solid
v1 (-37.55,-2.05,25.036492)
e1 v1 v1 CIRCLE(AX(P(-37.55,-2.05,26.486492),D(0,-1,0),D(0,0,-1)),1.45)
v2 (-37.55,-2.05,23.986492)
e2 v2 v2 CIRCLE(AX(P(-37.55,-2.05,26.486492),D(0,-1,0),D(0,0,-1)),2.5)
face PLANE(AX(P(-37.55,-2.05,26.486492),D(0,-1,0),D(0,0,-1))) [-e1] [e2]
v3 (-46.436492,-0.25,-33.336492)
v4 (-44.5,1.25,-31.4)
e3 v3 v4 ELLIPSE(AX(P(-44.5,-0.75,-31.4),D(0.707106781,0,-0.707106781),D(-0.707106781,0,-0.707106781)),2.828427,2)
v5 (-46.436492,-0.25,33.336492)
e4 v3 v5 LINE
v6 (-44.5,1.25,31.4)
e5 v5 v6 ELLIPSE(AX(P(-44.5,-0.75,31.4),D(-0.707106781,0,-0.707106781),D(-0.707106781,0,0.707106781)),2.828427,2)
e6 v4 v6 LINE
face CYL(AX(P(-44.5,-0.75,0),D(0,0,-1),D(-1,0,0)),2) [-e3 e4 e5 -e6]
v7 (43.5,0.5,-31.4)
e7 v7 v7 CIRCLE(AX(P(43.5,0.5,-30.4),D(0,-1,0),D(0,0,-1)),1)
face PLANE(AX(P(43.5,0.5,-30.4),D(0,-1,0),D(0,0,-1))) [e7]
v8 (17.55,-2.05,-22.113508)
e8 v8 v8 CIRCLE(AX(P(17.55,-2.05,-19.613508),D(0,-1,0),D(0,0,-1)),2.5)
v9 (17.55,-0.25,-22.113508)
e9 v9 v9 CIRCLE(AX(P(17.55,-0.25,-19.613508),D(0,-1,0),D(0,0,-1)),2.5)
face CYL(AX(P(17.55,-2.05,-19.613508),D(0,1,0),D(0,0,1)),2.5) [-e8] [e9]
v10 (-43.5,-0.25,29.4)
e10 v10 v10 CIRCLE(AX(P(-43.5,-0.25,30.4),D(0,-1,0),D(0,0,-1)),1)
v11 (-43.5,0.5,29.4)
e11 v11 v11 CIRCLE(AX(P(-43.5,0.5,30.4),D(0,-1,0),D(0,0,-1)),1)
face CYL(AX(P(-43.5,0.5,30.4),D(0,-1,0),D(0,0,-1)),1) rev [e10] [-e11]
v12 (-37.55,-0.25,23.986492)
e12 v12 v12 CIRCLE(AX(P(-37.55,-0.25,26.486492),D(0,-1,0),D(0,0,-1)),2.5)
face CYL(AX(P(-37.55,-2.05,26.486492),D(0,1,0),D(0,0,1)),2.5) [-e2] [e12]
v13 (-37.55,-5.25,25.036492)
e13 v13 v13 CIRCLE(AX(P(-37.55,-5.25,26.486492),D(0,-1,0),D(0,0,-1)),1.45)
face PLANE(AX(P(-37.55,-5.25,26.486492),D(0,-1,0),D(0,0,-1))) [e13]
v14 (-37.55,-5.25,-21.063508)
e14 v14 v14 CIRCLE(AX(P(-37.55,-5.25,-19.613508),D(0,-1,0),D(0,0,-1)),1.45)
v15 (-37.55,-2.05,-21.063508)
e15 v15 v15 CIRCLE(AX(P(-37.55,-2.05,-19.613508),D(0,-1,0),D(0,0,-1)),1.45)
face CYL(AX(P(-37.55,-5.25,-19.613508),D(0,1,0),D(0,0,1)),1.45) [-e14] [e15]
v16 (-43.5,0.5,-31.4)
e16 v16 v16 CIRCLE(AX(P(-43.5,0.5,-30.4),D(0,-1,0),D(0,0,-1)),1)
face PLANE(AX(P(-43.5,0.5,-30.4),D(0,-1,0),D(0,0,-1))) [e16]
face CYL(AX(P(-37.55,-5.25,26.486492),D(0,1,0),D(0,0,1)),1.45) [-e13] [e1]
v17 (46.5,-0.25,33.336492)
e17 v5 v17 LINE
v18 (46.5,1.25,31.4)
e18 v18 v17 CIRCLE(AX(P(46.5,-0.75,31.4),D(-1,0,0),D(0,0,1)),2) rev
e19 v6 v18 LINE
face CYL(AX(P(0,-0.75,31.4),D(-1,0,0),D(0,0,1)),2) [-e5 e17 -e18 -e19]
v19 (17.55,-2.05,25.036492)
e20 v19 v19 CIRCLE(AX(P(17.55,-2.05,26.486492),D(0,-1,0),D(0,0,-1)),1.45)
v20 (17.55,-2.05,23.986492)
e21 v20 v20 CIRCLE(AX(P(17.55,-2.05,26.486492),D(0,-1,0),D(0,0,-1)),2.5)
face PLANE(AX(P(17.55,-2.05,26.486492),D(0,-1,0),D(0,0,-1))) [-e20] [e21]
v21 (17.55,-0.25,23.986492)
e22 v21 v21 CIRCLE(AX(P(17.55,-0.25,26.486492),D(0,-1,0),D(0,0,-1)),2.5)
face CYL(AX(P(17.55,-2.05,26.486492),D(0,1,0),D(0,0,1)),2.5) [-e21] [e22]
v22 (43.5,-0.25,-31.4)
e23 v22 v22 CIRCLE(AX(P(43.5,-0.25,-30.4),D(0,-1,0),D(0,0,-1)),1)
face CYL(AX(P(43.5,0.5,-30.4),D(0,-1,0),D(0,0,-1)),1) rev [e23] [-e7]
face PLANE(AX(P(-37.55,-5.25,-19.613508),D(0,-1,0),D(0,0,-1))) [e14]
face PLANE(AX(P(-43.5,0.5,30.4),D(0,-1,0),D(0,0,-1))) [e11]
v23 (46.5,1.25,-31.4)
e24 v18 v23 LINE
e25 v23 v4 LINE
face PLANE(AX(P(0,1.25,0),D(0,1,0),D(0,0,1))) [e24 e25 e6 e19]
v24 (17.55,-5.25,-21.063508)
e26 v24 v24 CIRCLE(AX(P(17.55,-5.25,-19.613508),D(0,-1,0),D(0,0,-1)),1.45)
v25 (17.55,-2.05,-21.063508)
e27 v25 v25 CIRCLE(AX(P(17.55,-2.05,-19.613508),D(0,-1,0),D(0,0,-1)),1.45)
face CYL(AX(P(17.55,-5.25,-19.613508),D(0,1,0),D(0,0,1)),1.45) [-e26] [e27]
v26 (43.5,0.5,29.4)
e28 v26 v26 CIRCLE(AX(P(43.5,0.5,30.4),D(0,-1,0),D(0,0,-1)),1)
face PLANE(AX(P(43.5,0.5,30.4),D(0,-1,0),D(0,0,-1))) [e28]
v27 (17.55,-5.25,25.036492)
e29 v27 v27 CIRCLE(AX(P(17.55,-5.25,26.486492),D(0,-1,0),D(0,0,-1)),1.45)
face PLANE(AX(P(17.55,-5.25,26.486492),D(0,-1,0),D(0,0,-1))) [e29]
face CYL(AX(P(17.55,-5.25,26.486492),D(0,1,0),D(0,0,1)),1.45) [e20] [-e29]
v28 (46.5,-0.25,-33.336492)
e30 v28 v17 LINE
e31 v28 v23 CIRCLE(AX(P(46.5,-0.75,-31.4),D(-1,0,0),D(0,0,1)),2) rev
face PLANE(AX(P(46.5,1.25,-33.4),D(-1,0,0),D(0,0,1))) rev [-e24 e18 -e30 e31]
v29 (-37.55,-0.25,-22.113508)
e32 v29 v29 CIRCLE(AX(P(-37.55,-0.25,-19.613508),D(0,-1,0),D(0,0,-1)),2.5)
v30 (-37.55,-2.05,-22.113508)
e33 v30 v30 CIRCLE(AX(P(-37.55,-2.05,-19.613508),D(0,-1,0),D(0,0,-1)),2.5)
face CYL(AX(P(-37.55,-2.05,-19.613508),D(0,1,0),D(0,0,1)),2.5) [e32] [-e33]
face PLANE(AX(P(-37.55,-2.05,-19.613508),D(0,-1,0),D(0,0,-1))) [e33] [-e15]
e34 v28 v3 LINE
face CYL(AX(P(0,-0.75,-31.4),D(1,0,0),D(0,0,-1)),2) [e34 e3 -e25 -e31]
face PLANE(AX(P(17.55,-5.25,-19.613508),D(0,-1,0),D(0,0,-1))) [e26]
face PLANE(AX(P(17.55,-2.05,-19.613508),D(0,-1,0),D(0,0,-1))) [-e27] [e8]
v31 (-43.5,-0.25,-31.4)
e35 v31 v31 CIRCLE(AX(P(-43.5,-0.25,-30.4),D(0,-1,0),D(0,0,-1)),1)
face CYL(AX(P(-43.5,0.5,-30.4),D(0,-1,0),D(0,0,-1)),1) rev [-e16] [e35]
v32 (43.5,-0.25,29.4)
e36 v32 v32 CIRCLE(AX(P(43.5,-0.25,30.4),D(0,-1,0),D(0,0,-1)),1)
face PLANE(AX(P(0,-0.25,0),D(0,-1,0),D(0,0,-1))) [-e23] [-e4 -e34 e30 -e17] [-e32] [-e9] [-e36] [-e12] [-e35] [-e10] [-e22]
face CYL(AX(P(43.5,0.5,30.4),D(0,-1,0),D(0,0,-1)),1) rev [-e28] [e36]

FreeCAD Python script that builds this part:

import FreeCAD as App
import Part
import Sketcher

V = App.Vector


def edges_at(feature, points):
    """Names of the edges that pass closest to the given points."""
    edges = feature.Shape.Edges
    near = lambda p: min(range(len(edges)), key=lambda i: edges[i].distToShape(Part.Vertex(*p))[0])
    return sorted({f"Edge{near(p) + 1}" for p in points})

doc = App.newDocument("Part")
params = doc.addObject("Spreadsheet::Sheet", "Params")
for row, (alias, value) in enumerate([
    ("sketch1_width", "93 mm"),
    ("sketch1_height", "66.8 mm"),
    ("pad1_length", "2.5 mm"),
    ("fillet_radius", "2 mm"),
    ("sketch2_width", "93 mm"),
    ("sketch2_height", "66.8 mm"),
    ("pocket1_length", "1 mm"),
    ("sketch3_diameter", "2 mm"),
    ("pocket2_length", "0.75 mm"),
    ("sketch4_diameter", "2.9 mm"),
    ("pad2_length", "5 mm"),
    ("sketch5_diameter", "5 mm"),
    ("pad3_length", "1.8 mm"),
], start=1):
    params.set(f"A{row}", alias)
    params.set(f"B{row}", "=" + value)
    params.setAlias(f"B{row}", alias)

body = doc.addObject("PartDesign::Body", "Body")

sketch1 = body.newObject("Sketcher::SketchObject", "Sketch")
sketch1.AttachmentSupport = (doc.getObject("XZ_Plane"), [""])
sketch1.MapMode = "FlatFace"
sketch1.addGeometry([
    Part.LineSegment(V(-46, -33, 0), V(-46, 33, 0)),
    Part.LineSegment(V(-46, 33, 0), V(46, 33, 0)),
    Part.LineSegment(V(46, 33, 0), V(46, -33, 0)),
    Part.LineSegment(V(46, -33, 0), V(-46, -33, 0)),
], False)
sketch1.addConstraint([
    Sketcher.Constraint("Coincident", 0, 2, 1, 1),
    Sketcher.Constraint("Coincident", 1, 2, 2, 1),
    Sketcher.Constraint("Coincident", 2, 2, 3, 1),
    Sketcher.Constraint("Coincident", 3, 2, 0, 1),
    Sketcher.Constraint("Vertical", 0),
    Sketcher.Constraint("Horizontal", 1),
    Sketcher.Constraint("Vertical", 2),
    Sketcher.Constraint("Horizontal", 3),
    Sketcher.Constraint("Symmetric", 0, 2, 2, 2, -1, 1),
    Sketcher.Constraint("DistanceX", 1, 1, 1, 2, 93.0),
    Sketcher.Constraint("DistanceY", 0, 1, 0, 2, 66.8),
])
sketch1.setExpression("Constraints[9]", "Params.sketch1_width")
sketch1.setExpression("Constraints[10]", "Params.sketch1_height")
pad1 = body.newObject("PartDesign::Pad", "Pad")
pad1.Profile = sketch1
pad1.setExpression("Length", "Params.pad1_length")
pad1.Midplane = True
doc.recompute()

fillet = body.newObject("PartDesign::Fillet", "Fillet")
fillet.Base = (pad1, edges_at(pad1, [(0, 1.25, -33.4), (-46.5, 1.25, 0), (0, 1.25, 33.4)]))
fillet.setExpression("Radius", "Params.fillet_radius")

sketch2 = body.newObject("Sketcher::SketchObject", "Sketch001")
sketch2.AttachmentSupport = (doc.getObject("XZ_Plane"), [""])
sketch2.MapMode = "FlatFace"
sketch2.AttachmentOffset = App.Placement(V(0, 0, 1.25), App.Rotation())
sketch2.addGeometry([
    Part.LineSegment(V(-46, 33, 0), V(-46, -33, 0)),
    Part.LineSegment(V(-46, -33, 0), V(46, -33, 0)),
    Part.LineSegment(V(46, -33, 0), V(46, 33, 0)),
    Part.LineSegment(V(46, 33, 0), V(-46, 33, 0)),
], False)
sketch2.addConstraint([
    Sketcher.Constraint("Coincident", 0, 2, 1, 1),
    Sketcher.Constraint("Coincident", 1, 2, 2, 1),
    Sketcher.Constraint("Coincident", 2, 2, 3, 1),
    Sketcher.Constraint("Coincident", 3, 2, 0, 1),
    Sketcher.Constraint("Vertical", 0),
    Sketcher.Constraint("Horizontal", 1),
    Sketcher.Constraint("Vertical", 2),
    Sketcher.Constraint("Horizontal", 3),
    Sketcher.Constraint("Symmetric", 0, 2, 2, 2, -1, 1),
    Sketcher.Constraint("DistanceX", 1, 1, 1, 2, 93.0),
    Sketcher.Constraint("DistanceY", 0, 2, 0, 1, 66.8),
])
sketch2.setExpression("Constraints[9]", "Params.sketch2_width")
sketch2.setExpression("Constraints[10]", "Params.sketch2_height")
pocket1 = body.newObject("PartDesign::Pocket", "Pocket")
pocket1.Profile = sketch2
pocket1.setExpression("Length", "Params.pocket1_length")

sketch3 = body.newObject("Sketcher::SketchObject", "Sketch002")
sketch3.AttachmentSupport = (doc.getObject("XZ_Plane"), [""])
sketch3.MapMode = "FlatFace"
sketch3.AttachmentOffset = App.Placement(V(0, 0, 0.25), App.Rotation())
sketch3.addGeometry([
    Part.Circle(V(-43.5, 30.4, 0), V(0, 0, 1), 1),
    Part.Circle(V(43.5, 30.4, 0), V(0, 0, 1), 1),
    Part.Circle(V(43.5, -30.4, 0), V(0, 0, 1), 1),
    Part.Circle(V(-43.5, -30.4, 0), V(0, 0, 1), 1),
], False)
sketch3.addConstraint([
    Sketcher.Constraint("Equal", 0, 1),
    Sketcher.Constraint("Equal", 1, 2),
    Sketcher.Constraint("Equal", 2, 3),
    Sketcher.Constraint("Symmetric", 0, 3, 2, 3, -1, 1),
    Sketcher.Constraint("Symmetric", 1, 3, 3, 3, -1, 1),
    Sketcher.Constraint("Symmetric", 0, 3, 1, 3, -2),
    Sketcher.Constraint("Diameter", 0, 2.0),
    Sketcher.Constraint("DistanceX", 0, 3, 1, 3, 87.0),
    Sketcher.Constraint("DistanceY", -1, 1, 0, 3, 30.4),
])
sketch3.setExpression("Constraints[6]", "Params.sketch3_diameter")
pocket2 = body.newObject("PartDesign::Pocket", "Pocket001")
pocket2.Profile = sketch3
pocket2.setExpression("Length", "Params.pocket2_length")

sketch4 = body.newObject("Sketcher::SketchObject", "Sketch003")
sketch4.AttachmentSupport = (doc.getObject("XZ_Plane"), [""])
sketch4.MapMode = "FlatFace"
sketch4.AttachmentOffset = App.Placement(V(0, 0, 0.25), App.Rotation())
sketch4.addGeometry([
    Part.Circle(V(-37.5, 26.5, 0), V(0, 0, 1), 1.4),
    Part.Circle(V(17.6, 26.5, 0), V(0, 0, 1), 1.4),
    Part.Circle(V(17.6, -19.6, 0), V(0, 0, 1), 1.4),
    Part.Circle(V(-37.5, -19.6, 0), V(0, 0, 1), 1.4),
], False)
sketch4.addConstraint([
    Sketcher.Constraint("Equal", 0, 1),
    Sketcher.Constraint("Equal", 1, 2),
    Sketcher.Constraint("Equal", 2, 3),
    Sketcher.Constraint("Horizontal", 0, 3, 1, 3),
    Sketcher.Constraint("Horizontal", 2, 3, 3, 3),
    Sketcher.Constraint("Vertical", 1, 3, 2, 3),
    Sketcher.Constraint("Vertical", 0, 3, 3, 3),
    Sketcher.Constraint("Diameter", 0, 2.9),
    Sketcher.Constraint("DistanceX", 0, 3, 1, 3, 55.1),
    Sketcher.Constraint("DistanceY", 2, 3, 1, 3, 46.1),
    Sketcher.Constraint("DistanceX", 0, 3, -1, 1, 37.55),
    Sketcher.Constraint("DistanceY", -1, 1, 0, 3, 26.486492),
])
sketch4.setExpression("Constraints[7]", "Params.sketch4_diameter")
pad2 = body.newObject("PartDesign::Pad", "Pad001")
pad2.Profile = sketch4
pad2.setExpression("Length", "Params.pad2_length")

sketch5 = body.newObject("Sketcher::SketchObject", "Sketch004")
sketch5.AttachmentSupport = (doc.getObject("XZ_Plane"), [""])
sketch5.MapMode = "FlatFace"
sketch5.AttachmentOffset = App.Placement(V(0, 0, 0.25), App.Rotation())
sketch5.addGeometry([
    Part.Circle(V(-37.5, 26.5, 0), V(0, 0, 1), 2.5),
    Part.Circle(V(17.6, 26.5, 0), V(0, 0, 1), 2.5),
    Part.Circle(V(17.6, -19.6, 0), V(0, 0, 1), 2.5),
    Part.Circle(V(-37.5, -19.6, 0), V(0, 0, 1), 2.5),
], False)
sketch5.addConstraint([
    Sketcher.Constraint("Equal", 0, 1),
    Sketcher.Constraint("Equal", 1, 2),
    Sketcher.Constraint("Equal", 2, 3),
    Sketcher.Constraint("Horizontal", 0, 3, 1, 3),
    Sketcher.Constraint("Horizontal", 2, 3, 3, 3),
    Sketcher.Constraint("Vertical", 1, 3, 2, 3),
    Sketcher.Constraint("Vertical", 0, 3, 3, 3),
    Sketcher.Constraint("Diameter", 0, 5.0),
    Sketcher.Constraint("DistanceX", 0, 3, 1, 3, 55.1),
    Sketcher.Constraint("DistanceY", 2, 3, 1, 3, 46.1),
    Sketcher.Constraint("DistanceX", 0, 3, -1, 1, 37.55),
    Sketcher.Constraint("DistanceY", -1, 1, 0, 3, 26.486492),
])
sketch5.setExpression("Constraints[7]", "Params.sketch5_diameter")
pad3 = body.newObject("PartDesign::Pad", "Pad002")
pad3.Profile = sketch5
pad3.setExpression("Length", "Params.pad3_length")

doc.recompute()
